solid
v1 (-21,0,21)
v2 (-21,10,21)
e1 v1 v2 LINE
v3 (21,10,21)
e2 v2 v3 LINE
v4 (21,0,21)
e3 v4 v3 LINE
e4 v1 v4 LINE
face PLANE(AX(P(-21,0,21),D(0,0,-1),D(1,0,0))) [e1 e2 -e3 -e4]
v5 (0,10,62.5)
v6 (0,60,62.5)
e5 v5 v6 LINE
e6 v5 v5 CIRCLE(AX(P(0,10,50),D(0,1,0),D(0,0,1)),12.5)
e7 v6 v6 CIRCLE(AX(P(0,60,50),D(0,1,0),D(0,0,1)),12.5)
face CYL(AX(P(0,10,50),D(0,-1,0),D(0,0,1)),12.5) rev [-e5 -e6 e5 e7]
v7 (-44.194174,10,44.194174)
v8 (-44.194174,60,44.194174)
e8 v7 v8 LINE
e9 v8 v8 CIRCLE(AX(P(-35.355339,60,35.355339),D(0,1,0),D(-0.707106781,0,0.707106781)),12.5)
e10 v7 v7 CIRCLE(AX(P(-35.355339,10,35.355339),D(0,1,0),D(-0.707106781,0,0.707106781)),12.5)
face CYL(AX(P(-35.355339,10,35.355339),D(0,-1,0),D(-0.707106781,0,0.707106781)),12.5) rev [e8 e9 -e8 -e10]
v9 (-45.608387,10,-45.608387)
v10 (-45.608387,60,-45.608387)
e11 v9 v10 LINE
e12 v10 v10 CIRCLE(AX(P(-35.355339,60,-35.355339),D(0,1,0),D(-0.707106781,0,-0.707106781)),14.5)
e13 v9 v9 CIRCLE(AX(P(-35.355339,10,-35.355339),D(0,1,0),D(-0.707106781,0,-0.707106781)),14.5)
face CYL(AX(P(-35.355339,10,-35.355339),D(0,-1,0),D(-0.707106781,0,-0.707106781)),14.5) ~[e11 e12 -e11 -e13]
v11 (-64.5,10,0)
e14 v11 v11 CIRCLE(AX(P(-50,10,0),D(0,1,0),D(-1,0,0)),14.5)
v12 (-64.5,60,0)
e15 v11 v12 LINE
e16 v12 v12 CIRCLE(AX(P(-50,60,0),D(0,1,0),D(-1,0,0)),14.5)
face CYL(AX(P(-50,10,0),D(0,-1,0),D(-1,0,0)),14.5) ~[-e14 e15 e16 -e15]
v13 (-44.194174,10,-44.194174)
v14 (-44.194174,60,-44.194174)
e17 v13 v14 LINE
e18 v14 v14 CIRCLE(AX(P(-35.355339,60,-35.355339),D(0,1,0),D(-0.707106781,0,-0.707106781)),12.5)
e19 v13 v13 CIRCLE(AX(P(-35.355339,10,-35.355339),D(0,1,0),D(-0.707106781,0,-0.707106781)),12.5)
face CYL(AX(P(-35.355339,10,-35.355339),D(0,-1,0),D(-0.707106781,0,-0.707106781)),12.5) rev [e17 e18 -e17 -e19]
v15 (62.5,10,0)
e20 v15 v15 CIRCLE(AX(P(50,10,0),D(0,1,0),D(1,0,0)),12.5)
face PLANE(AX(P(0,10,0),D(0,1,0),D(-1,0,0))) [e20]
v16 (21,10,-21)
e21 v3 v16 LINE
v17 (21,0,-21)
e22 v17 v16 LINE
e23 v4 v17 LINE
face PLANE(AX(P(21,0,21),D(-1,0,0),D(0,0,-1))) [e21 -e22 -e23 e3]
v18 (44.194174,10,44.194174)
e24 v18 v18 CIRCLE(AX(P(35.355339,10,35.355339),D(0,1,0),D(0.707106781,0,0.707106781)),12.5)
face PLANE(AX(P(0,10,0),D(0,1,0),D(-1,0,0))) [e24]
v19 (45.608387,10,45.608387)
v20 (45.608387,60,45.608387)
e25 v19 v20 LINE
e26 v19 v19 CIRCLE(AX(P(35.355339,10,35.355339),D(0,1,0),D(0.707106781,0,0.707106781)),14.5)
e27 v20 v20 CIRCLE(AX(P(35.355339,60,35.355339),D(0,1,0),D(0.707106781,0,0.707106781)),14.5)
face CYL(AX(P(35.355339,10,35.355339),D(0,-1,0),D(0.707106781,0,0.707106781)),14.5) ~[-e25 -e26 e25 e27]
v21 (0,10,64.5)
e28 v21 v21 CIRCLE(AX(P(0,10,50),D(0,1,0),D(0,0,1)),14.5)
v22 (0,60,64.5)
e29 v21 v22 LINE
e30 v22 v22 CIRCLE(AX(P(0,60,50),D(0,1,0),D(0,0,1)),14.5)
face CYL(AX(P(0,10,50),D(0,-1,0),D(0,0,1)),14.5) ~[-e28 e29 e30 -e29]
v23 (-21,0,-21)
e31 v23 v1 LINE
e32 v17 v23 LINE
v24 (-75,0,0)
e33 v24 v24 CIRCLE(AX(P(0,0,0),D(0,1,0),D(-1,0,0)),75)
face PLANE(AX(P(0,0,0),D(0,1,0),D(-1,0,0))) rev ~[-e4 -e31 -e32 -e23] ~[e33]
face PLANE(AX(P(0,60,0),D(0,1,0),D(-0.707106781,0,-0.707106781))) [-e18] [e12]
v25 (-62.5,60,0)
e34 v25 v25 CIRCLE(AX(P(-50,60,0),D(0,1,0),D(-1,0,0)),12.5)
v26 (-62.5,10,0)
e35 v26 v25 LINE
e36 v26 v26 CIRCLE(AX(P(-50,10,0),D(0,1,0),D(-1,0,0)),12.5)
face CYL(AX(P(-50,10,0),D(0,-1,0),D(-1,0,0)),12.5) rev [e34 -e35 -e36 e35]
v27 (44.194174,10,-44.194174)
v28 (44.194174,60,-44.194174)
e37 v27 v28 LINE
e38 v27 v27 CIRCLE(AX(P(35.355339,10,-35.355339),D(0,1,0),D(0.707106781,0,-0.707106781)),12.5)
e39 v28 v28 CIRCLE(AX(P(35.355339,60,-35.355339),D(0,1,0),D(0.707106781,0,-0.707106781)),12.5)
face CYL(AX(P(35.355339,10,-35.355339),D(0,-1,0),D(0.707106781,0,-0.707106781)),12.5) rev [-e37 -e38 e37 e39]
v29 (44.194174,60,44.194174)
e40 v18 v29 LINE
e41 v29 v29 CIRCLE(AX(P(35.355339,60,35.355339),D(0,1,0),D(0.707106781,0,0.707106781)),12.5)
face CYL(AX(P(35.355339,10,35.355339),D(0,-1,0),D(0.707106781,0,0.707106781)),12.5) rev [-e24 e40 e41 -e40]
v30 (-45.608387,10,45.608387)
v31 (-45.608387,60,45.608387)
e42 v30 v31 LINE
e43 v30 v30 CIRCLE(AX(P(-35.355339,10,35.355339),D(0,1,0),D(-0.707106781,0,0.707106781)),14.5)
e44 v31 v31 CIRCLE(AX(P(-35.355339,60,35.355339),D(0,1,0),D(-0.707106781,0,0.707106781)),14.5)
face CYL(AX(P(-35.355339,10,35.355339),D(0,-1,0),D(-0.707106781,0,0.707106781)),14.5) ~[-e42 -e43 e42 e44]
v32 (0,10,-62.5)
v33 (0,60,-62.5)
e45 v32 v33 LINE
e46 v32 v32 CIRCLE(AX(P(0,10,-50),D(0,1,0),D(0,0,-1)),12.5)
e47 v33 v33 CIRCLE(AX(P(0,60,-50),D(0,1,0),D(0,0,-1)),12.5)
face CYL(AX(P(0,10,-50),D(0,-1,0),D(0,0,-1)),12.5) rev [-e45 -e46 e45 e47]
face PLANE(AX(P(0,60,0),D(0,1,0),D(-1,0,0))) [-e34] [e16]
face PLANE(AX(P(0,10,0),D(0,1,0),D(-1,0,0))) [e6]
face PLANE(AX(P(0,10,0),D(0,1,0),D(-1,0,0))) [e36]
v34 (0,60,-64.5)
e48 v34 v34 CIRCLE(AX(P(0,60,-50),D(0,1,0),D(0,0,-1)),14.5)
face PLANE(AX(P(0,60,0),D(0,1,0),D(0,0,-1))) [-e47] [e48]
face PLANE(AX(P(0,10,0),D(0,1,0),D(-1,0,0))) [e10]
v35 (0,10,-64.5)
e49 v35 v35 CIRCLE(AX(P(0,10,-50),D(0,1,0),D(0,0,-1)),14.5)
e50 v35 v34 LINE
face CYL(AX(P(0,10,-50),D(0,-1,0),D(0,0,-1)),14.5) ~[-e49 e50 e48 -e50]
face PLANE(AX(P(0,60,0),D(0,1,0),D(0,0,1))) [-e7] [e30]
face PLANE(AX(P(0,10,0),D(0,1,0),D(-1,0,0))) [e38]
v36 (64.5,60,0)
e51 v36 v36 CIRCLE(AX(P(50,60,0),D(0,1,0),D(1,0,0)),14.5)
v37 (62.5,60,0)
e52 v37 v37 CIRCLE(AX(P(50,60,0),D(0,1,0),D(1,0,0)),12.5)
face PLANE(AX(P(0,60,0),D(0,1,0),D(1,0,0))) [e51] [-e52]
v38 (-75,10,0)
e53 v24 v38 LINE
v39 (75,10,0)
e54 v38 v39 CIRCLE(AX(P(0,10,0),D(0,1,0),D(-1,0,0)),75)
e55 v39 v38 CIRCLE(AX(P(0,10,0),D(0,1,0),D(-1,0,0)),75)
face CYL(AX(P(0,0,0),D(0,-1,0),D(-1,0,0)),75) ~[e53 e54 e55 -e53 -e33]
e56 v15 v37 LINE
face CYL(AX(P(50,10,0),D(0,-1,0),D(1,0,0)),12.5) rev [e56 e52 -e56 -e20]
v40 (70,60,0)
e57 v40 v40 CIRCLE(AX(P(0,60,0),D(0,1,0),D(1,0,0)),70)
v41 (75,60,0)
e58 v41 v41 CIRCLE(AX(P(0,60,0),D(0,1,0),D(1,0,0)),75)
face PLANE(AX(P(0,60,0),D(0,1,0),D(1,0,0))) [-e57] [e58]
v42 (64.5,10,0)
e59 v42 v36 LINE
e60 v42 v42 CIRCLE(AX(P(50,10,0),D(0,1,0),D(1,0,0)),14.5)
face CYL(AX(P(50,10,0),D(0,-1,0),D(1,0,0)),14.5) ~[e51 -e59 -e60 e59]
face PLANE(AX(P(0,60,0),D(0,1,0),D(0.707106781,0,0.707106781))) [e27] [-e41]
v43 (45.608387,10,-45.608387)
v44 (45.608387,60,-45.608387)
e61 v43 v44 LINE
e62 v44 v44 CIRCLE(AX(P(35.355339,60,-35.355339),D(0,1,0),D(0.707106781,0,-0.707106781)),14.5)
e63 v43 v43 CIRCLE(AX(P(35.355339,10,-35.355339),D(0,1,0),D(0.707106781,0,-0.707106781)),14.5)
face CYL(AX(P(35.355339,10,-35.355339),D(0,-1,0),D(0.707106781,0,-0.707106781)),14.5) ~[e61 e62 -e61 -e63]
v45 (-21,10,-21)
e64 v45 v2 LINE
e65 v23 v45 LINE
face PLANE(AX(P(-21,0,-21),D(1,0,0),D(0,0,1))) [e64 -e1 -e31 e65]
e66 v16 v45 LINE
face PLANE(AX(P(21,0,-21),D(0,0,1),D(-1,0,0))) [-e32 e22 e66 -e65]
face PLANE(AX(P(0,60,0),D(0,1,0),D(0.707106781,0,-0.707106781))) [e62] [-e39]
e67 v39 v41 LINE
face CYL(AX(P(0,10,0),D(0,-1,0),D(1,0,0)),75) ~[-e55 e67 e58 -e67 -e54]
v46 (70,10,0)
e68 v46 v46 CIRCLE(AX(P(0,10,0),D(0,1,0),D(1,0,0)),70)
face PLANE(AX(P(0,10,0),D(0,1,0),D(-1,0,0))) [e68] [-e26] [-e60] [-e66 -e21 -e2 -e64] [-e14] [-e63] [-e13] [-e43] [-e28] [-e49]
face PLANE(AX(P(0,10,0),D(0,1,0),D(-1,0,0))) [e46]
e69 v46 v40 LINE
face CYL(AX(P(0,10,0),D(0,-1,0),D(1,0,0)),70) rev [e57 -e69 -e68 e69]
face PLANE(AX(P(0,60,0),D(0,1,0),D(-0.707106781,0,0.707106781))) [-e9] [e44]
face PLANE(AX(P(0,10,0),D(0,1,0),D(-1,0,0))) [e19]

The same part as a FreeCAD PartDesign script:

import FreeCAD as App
import Part
import Sketcher

V = App.Vector
Q = App.Units.Quantity

doc = App.newDocument("Part")
params = doc.addObject("Spreadsheet::Sheet", "Params")
for row, (alias, value) in enumerate([
    ("sketch1_diameter", "150 mm"),
    ("sketch1_width", "42 mm"),
    ("pad1_length", "10 mm"),
    ("sketch2_diameter", "25 mm"),
    ("sketch2_diameter2", "29 mm"),
    ("pad2_length", "50 mm"),
    ("sketch3_diameter", "150 mm"),
    ("sketch3_diameter2", "140 mm"),
    ("pad3_length", "50 mm"),
], start=1):
    params.set(f"A{row}", alias)
    params.set(f"B{row}", "=" + value)
    params.setAlias(f"B{row}", alias)

body = doc.addObject("PartDesign::Body", "Body")

sketch1 = doc.addObject("Sketcher::SketchObject", "Sketch")
body.addObject(sketch1)
sketch1.AttachmentSupport = (doc.XZ_Plane, [""])
sketch1.MapMode = "FlatFace"
sketch1.addGeometry(Part.Circle(V(0, 0, 0), V(0, 0, 1), 75), False)
sketch1.addGeometry(Part.LineSegment(V(-21, -21, 0), V(21, -21, 0)), False)
sketch1.addGeometry(Part.LineSegment(V(21, -21, 0), V(21, 21, 0)), False)
sketch1.addGeometry(Part.LineSegment(V(21, 21, 0), V(-21, 21, 0)), False)
sketch1.addGeometry(Part.LineSegment(V(-21, 21, 0), V(-21, -21, 0)), False)
sketch1.addConstraint(Sketcher.Constraint("Coincident", 1, 2, 2, 1))
sketch1.addConstraint(Sketcher.Constraint("Coincident", 2, 2, 3, 1))
sketch1.addConstraint(Sketcher.Constraint("Coincident", 3, 2, 4, 1))
sketch1.addConstraint(Sketcher.Constraint("Coincident", 4, 2, 1, 1))
sketch1.addConstraint(Sketcher.Constraint("Horizontal", 1))
sketch1.addConstraint(Sketcher.Constraint("Vertical", 2))
sketch1.addConstraint(Sketcher.Constraint("Horizontal", 3))
sketch1.addConstraint(Sketcher.Constraint("Vertical", 4))
sketch1.addConstraint(Sketcher.Constraint("Coincident", 0, 3, -1, 1))
sketch1.addConstraint(Sketcher.Constraint("Symmetric", 1, 2, 3, 2, -1, 1))
sketch1.addConstraint(Sketcher.Constraint("Equal", 3, 2))
sketch1.addConstraint(Sketcher.Constraint("Diameter", 0, Q("150 mm")))
sketch1.addConstraint(Sketcher.Constraint("DistanceX", 1, 1, 1, 2, Q("42 mm")))
sketch1.setExpression("Constraints[11]", "Params.sketch1_diameter")
sketch1.setExpression("Constraints[12]", "Params.sketch1_width")
pad1 = doc.addObject("PartDesign::Pad", "Pad")
body.addObject(pad1)
pad1.Profile = sketch1
pad1.setExpression("Length", "Params.pad1_length")
pad1.Reversed = True

sketch2 = doc.addObject("Sketcher::SketchObject", "Sketch001")
body.addObject(sketch2)
sketch2.AttachmentSupport = (doc.XZ_Plane, [""])
sketch2.MapMode = "FlatFace"
sketch2.AttachmentOffset = App.Placement(V(0, 0, -10), App.Rotation())
sketch2.addGeometry(Part.Circle(V(-50, 0, 0), V(0, 0, 1), 14.5), False)
sketch2.addGeometry(Part.Circle(V(-50, 0, 0), V(0, 0, 1), 12.5), False)
sketch2.addConstraint(Sketcher.Constraint("Coincident", 1, 3, 0, 3))
sketch2.addConstraint(Sketcher.Constraint("PointOnObject", 0, 3, -1))
sketch2.addConstraint(Sketcher.Constraint("Diameter", 1, Q("25 mm")))
sketch2.addConstraint(Sketcher.Constraint("Diameter", 0, Q("29 mm")))
sketch2.addConstraint(Sketcher.Constraint("DistanceX", 0, 3, -1, 1, Q("50 mm")))
sketch2.setExpression("Constraints[2]", "Params.sketch2_diameter")
sketch2.setExpression("Constraints[3]", "Params.sketch2_diameter2")
pad2 = doc.addObject("PartDesign::Pad", "Pad001")
body.addObject(pad2)
pad2.Profile = sketch2
pad2.setExpression("Length", "Params.pad2_length")
pad2.Reversed = True

sketch3 = doc.addObject("Sketcher::SketchObject", "Sketch002")
body.addObject(sketch3)
sketch3.AttachmentSupport = (doc.XZ_Plane, [""])
sketch3.MapMode = "FlatFace"
sketch3.AttachmentOffset = App.Placement(V(0, 0, -10), App.Rotation())
sketch3.addGeometry(Part.Circle(V(0, 0, 0), V(0, 0, 1), 75), False)
sketch3.addGeometry(Part.Circle(V(0, 0, 0), V(0, 0, 1), 70), False)
sketch3.addConstraint(Sketcher.Constraint("Coincident", 0, 3, -1, 1))
sketch3.addConstraint(Sketcher.Constraint("Coincident", 1, 3, -1, 1))
sketch3.addConstraint(Sketcher.Constraint("Diameter", 0, Q("150 mm")))
sketch3.addConstraint(Sketcher.Constraint("Diameter", 1, Q("140 mm")))
sketch3.setExpression("Constraints[2]", "Params.sketch3_diameter")
sketch3.setExpression("Constraints[3]", "Params.sketch3_diameter2")
pad3 = doc.addObject("PartDesign::Pad", "Pad002")
body.addObject(pad3)
pad3.Profile = sketch3
pad3.setExpression("Length", "Params.pad3_length")
pad3.Reversed = True
doc.recompute()

polarpattern = doc.addObject("PartDesign::PolarPattern", "PolarPattern")
body.addObject(polarpattern)
polarpattern.Originals = [pad2]
polarpattern.Axis = (doc.Y_Axis, [""])
polarpattern.Angle = 360
polarpattern.Occurrences = 8
body.Tip = polarpattern

doc.recompute()
